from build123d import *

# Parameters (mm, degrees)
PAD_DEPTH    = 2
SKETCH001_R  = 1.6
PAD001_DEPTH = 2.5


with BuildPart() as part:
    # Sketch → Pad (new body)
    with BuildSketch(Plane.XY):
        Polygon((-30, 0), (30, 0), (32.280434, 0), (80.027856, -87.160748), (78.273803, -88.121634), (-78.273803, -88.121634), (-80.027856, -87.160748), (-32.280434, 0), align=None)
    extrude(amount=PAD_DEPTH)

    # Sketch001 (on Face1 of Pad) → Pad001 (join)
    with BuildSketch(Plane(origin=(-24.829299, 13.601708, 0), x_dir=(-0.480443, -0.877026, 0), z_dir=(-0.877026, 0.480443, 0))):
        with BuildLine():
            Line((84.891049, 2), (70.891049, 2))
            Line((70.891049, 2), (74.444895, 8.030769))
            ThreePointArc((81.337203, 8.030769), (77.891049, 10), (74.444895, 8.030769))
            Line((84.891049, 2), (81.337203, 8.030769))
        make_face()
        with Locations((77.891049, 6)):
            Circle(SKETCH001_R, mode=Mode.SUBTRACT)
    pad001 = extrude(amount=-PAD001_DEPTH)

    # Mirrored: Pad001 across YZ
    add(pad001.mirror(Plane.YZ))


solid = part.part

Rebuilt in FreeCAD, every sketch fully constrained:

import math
import FreeCAD as App
import Part
import Sketcher

V = App.Vector

doc = App.newDocument("Part")
body = doc.addObject("PartDesign::Body", "Body")

# Sketch on XY plane
sketch1 = body.newObject("Sketcher::SketchObject", "Sketch")
sketch1.AttachmentSupport = (doc.getObject("XY_Plane"), [""])
sketch1.MapMode = "FlatFace"
sketch1.addGeometry([
    Part.LineSegment(V(32.3, 0, 0), V(-32.3, 0, 0)),  # 0
    Part.LineSegment(V(-32.3, 0, 0), V(-80, -87.2, 0)),  # 1
    Part.LineSegment(V(-80, -87.2, 0), V(-78.3, -88.1, 0)),  # 2
    Part.LineSegment(V(-78.3, -88.1, 0), V(78.3, -88.1, 0)),  # 3
    Part.LineSegment(V(78.3, -88.1, 0), V(80, -87.2, 0)),  # 4
    Part.LineSegment(V(80, -87.2, 0), V(32.3, 0, 0)),  # 5
], False)
sketch1.addConstraint([
    Sketcher.Constraint("Coincident", 0, 2, 1, 1),
    Sketcher.Constraint("Coincident", 1, 2, 2, 1),
    Sketcher.Constraint("Coincident", 2, 2, 3, 1),
    Sketcher.Constraint("Coincident", 3, 2, 4, 1),
    Sketcher.Constraint("Coincident", 4, 2, 5, 1),
    Sketcher.Constraint("Coincident", 5, 2, 0, 1),
    Sketcher.Constraint("Horizontal", 0),
    Sketcher.Constraint("Horizontal", 3),
    Sketcher.Constraint("Symmetric", 0, 2, 5, 2, -1, 1),
    Sketcher.Constraint("Symmetric", 1, 2, 4, 2, -2),
    Sketcher.Constraint("Perpendicular", 1, 2),
    Sketcher.Constraint("Perpendicular", 4, 5),
    Sketcher.Constraint("Distance", 2, 2.000001),
    Sketcher.Constraint("DistanceX", 0, 2, 0, 1, 64.560868),
    Sketcher.Constraint("DistanceX", 3, 1, 3, 2, 156.547606),
    Sketcher.Constraint("DistanceY", 1, 2, -1, 1, 87.160748),
])
pad1 = body.newObject("PartDesign::Pad", "Pad")
pad1.Profile = sketch1
pad1.Length = 2

# Sketch on an angled plane
sketch2 = body.newObject("Sketcher::SketchObject", "Sketch001")
sketch2.Placement = App.Placement(V(-24.829299, 13.601708, 0), App.Rotation(V(-0.480442981, -0.877025965, 0), V(0, 0, 1.000000001), V(-0.877025965, 0.480442981, 0), "ZXY"))
sketch2.addGeometry([
    Part.LineSegment(V(70.9, 2, 0), V(84.9, 2, 0)),  # 0
    Part.LineSegment(V(84.9, 2, 0), V(81.3, 8, 0)),  # 1
    Part.ArcOfCircle(Part.Circle(V(77.9, 6, 0), V(0, 0, 1), 4), math.radians(31), math.radians(149)),  # 2
    Part.LineSegment(V(74.4, 8, 0), V(70.9, 2, 0)),  # 3
    Part.Circle(V(77.9, 6, 0), V(0, 0, 1), 1.6),  # 4
], False)
sketch2.addConstraint([
    Sketcher.Constraint("Coincident", 0, 2, 1, 1),
    Sketcher.Constraint("Tangent", 1, 2, 2, 1),
    Sketcher.Constraint("Tangent", 2, 2, 3, 1),
    Sketcher.Constraint("Coincident", 3, 2, 0, 1),
    Sketcher.Constraint("Horizontal", 0),
    Sketcher.Constraint("Coincident", 4, 3, 2, 3),
    Sketcher.Constraint("Horizontal", 1, 2, 2, 2),
    Sketcher.Constraint("Radius", 2, 4.0),
    Sketcher.Constraint("Diameter", 4, 3.2),
    Sketcher.Constraint("DistanceX", 0, 1, 0, 2, 14.0),
    Sketcher.Constraint("Distance", 1, 7.0),
    Sketcher.Constraint("DistanceY", -1, 1, 2, 3, 6.0),
    Sketcher.Constraint("DistanceX", -1, 1, 2, 3, 77.891049),
])
pad2 = body.newObject("PartDesign::Pad", "Pad001")
pad2.Profile = sketch2
pad2.Length = 2.5
pad2.Reversed = True
doc.recompute()

mirrored = body.newObject("PartDesign::Mirrored", "Mirrored")
mirrored.Originals = [pad2]
mirrored.MirrorPlane = (doc.getObject("YZ_Plane"), [""])
body.Tip = mirrored

doc.recompute()
